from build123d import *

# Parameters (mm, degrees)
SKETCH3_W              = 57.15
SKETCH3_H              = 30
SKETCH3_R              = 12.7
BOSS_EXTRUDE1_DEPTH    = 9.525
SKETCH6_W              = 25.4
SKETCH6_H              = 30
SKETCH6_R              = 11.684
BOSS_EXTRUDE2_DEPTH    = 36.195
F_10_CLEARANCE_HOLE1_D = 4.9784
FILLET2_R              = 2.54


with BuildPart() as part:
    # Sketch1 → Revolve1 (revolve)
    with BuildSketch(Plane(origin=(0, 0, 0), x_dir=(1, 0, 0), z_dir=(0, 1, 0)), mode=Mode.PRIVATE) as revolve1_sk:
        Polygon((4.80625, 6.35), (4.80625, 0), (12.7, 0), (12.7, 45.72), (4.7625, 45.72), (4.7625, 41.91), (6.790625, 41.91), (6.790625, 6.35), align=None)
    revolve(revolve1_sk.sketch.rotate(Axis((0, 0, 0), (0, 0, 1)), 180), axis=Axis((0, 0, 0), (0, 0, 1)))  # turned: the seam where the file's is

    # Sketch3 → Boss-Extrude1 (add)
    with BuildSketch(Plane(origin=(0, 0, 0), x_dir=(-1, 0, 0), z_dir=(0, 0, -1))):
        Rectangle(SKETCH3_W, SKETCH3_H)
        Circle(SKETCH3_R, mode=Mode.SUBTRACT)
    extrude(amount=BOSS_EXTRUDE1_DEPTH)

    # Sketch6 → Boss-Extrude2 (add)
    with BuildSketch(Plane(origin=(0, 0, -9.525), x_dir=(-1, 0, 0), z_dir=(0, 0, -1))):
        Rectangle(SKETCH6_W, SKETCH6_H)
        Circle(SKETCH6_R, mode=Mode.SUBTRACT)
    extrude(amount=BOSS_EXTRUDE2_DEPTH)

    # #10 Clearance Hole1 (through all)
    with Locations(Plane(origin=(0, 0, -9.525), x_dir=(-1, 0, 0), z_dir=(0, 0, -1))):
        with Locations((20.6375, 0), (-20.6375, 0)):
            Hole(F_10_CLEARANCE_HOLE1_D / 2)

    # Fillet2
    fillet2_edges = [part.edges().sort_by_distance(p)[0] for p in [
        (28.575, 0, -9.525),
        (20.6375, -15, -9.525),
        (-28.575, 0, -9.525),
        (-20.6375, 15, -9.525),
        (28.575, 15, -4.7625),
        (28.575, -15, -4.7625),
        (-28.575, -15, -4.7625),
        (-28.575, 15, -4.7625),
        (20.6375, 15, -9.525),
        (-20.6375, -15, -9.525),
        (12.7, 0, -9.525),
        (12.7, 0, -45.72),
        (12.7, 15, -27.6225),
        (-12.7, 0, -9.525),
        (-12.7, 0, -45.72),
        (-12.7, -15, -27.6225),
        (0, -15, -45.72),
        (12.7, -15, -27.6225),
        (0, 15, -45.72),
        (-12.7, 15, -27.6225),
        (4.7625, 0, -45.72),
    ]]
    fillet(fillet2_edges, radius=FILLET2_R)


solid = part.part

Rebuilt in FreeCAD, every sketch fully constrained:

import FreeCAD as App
import Part
import Sketcher
Q = App.Units.Quantity


def edges_at(feature, points):
    """Names of the edges that pass closest to the given points."""
    edges = feature.Shape.Edges
    near = lambda p: min(range(len(edges)), key=lambda i: edges[i].distToShape(Part.Vertex(*p))[0])
    return sorted({f"Edge{near(p) + 1}" for p in points})

doc = App.newDocument("Part")
body = doc.addObject("PartDesign::Body", "Body")

sketch1 = body.newObject("Sketcher::SketchObject", "Sketch")
sketch1.AttachmentSupport = (doc.getObject("XZ_Plane"), [""])
sketch1.MapMode = "FlatFace"
sketch1.addGeometry(Part.LineSegment(App.Vector(4.8, -6.3, 0), App.Vector(4.8, 0, 0)), False)
sketch1.addGeometry(Part.LineSegment(App.Vector(4.8, 0, 0), App.Vector(12.7, 0, 0)), False)
sketch1.addGeometry(Part.LineSegment(App.Vector(12.7, 0, 0), App.Vector(12.7, -45.7, 0)), False)
sketch1.addGeometry(Part.LineSegment(App.Vector(12.7, -45.7, 0), App.Vector(4.8, -45.7, 0)), False)
sketch1.addGeometry(Part.LineSegment(App.Vector(4.8, -45.7, 0), App.Vector(4.8, -41.9, 0)), False)
sketch1.addGeometry(Part.LineSegment(App.Vector(4.8, -41.9, 0), App.Vector(6.8, -41.9, 0)), False)
sketch1.addGeometry(Part.LineSegment(App.Vector(6.8, -41.9, 0), App.Vector(6.8, -6.3, 0)), False)
sketch1.addGeometry(Part.LineSegment(App.Vector(6.8, -6.3, 0), App.Vector(4.8, -6.3, 0)), False)
sketch1.addConstraint(Sketcher.Constraint("Coincident", 0, 2, 1, 1))
sketch1.addConstraint(Sketcher.Constraint("Coincident", 1, 2, 2, 1))
sketch1.addConstraint(Sketcher.Constraint("Coincident", 2, 2, 3, 1))
sketch1.addConstraint(Sketcher.Constraint("Coincident", 3, 2, 4, 1))
sketch1.addConstraint(Sketcher.Constraint("Coincident", 4, 2, 5, 1))
sketch1.addConstraint(Sketcher.Constraint("Coincident", 5, 2, 6, 1))
sketch1.addConstraint(Sketcher.Constraint("Coincident", 6, 2, 7, 1))
sketch1.addConstraint(Sketcher.Constraint("Coincident", 7, 2, 0, 1))
sketch1.addConstraint(Sketcher.Constraint("Vertical", 0))
sketch1.addConstraint(Sketcher.Constraint("Horizontal", 1))
sketch1.addConstraint(Sketcher.Constraint("Vertical", 2))
sketch1.addConstraint(Sketcher.Constraint("Horizontal", 3))
sketch1.addConstraint(Sketcher.Constraint("Vertical", 4))
sketch1.addConstraint(Sketcher.Constraint("Horizontal", 5))
sketch1.addConstraint(Sketcher.Constraint("Vertical", 6))
sketch1.addConstraint(Sketcher.Constraint("Horizontal", 7))
sketch1.addConstraint(Sketcher.Constraint("PointOnObject", 0, 2, -1))
sketch1.addConstraint(Sketcher.Constraint("DistanceY", 2, 2, 2, 1, Q("1.8 in")))
sketch1.addConstraint(Sketcher.Constraint("DistanceY", 6, 1, 6, 2, Q("1.4 in")))
sketch1.addConstraint(Sketcher.Constraint("DistanceY", 0, 1, 0, 2, Q("0.25 in")))
sketch1.addConstraint(Sketcher.Constraint("DistanceX", -1, 1, 1, 2, Q("0.5 in")))
sketch1.addConstraint(Sketcher.Constraint("DistanceX", 3, 2, 3, 1, Q("0.3125 in")))
sketch1.addConstraint(Sketcher.Constraint("DistanceX", 7, 2, 7, 1, Q("0.078125 in")))
sketch1.addConstraint(Sketcher.Constraint("DistanceX", 1, 1, 1, 2, Q("7.89375 mm")))
revolution = body.newObject("PartDesign::Revolution", "Revolution")
revolution.Profile = sketch1
revolution.ReferenceAxis = (sketch1, ["V_Axis"])
revolution.Angle = 360

sketch2 = body.newObject("Sketcher::SketchObject", "Sketch001")
sketch2.AttachmentSupport = (doc.getObject("XY_Plane"), [""])
sketch2.MapMode = "FlatFace"
sketch2.addGeometry(Part.LineSegment(App.Vector(29, 15, 0), App.Vector(29, -15, 0)), False)
sketch2.addGeometry(Part.LineSegment(App.Vector(29, -15, 0), App.Vector(-29, -15, 0)), False)
sketch2.addGeometry(Part.LineSegment(App.Vector(-29, -15, 0), App.Vector(-29, 15, 0)), False)
sketch2.addGeometry(Part.LineSegment(App.Vector(-29, 15, 0), App.Vector(29, 15, 0)), False)
sketch2.addGeometry(Part.Circle(App.Vector(0, 0, 0), App.Vector(0, 0, 1), 13), False)
sketch2.addConstraint(Sketcher.Constraint("Coincident", 0, 2, 1, 1))
sketch2.addConstraint(Sketcher.Constraint("Coincident", 1, 2, 2, 1))
sketch2.addConstraint(Sketcher.Constraint("Coincident", 2, 2, 3, 1))
sketch2.addConstraint(Sketcher.Constraint("Coincident", 3, 2, 0, 1))
sketch2.addConstraint(Sketcher.Constraint("Vertical", 0))
sketch2.addConstraint(Sketcher.Constraint("Horizontal", 1))
sketch2.addConstraint(Sketcher.Constraint("Vertical", 2))
sketch2.addConstraint(Sketcher.Constraint("Horizontal", 3))
sketch2.addConstraint(Sketcher.Constraint("Coincident", 4, 3, -1, 1))
sketch2.addConstraint(Sketcher.Constraint("Symmetric", 0, 2, 2, 2, -1, 1))
sketch2.addConstraint(Sketcher.Constraint("Diameter", 4, Q("1 in")))
sketch2.addConstraint(Sketcher.Constraint("DistanceX", 1, 2, 1, 1, Q("2.25 in")))
sketch2.addConstraint(Sketcher.Constraint("DistanceY", 0, 2, 0, 1, Q("30 mm")))
pad1 = body.newObject("PartDesign::Pad", "Pad")
pad1.Profile = sketch2
pad1.Length = Q("0.375 in")
pad1.Reversed = True

sketch3 = body.newObject("Sketcher::SketchObject", "Sketch002")
sketch3.AttachmentSupport = (doc.getObject("XY_Plane"), [""])
sketch3.MapMode = "FlatFace"
sketch3.AttachmentOffset = App.Placement(App.Vector(0, 0, -0.375 * 25.4), App.Rotation())
sketch3.addGeometry(Part.LineSegment(App.Vector(13, 15, 0), App.Vector(13, -15, 0)), False)
sketch3.addGeometry(Part.LineSegment(App.Vector(13, -15, 0), App.Vector(-13, -15, 0)), False)
sketch3.addGeometry(Part.LineSegment(App.Vector(-13, -15, 0), App.Vector(-13, 15, 0)), False)
sketch3.addGeometry(Part.LineSegment(App.Vector(-13, 15, 0), App.Vector(13, 15, 0)), False)
sketch3.addGeometry(Part.Circle(App.Vector(0, 0, 0), App.Vector(0, 0, 1), 12), False)
sketch3.addConstraint(Sketcher.Constraint("Coincident", 0, 2, 1, 1))
sketch3.addConstraint(Sketcher.Constraint("Coincident", 1, 2, 2, 1))
sketch3.addConstraint(Sketcher.Constraint("Coincident", 2, 2, 3, 1))
sketch3.addConstraint(Sketcher.Constraint("Coincident", 3, 2, 0, 1))
sketch3.addConstraint(Sketcher.Constraint("Vertical", 0))
sketch3.addConstraint(Sketcher.Constraint("Horizontal", 1))
sketch3.addConstraint(Sketcher.Constraint("Vertical", 2))
sketch3.addConstraint(Sketcher.Constraint("Horizontal", 3))
sketch3.addConstraint(Sketcher.Constraint("Coincident", 4, 3, -1, 1))
sketch3.addConstraint(Sketcher.Constraint("Symmetric", 0, 2, 2, 2, -1, 1))
sketch3.addConstraint(Sketcher.Constraint("Diameter", 4, Q("0.92 in")))
sketch3.addConstraint(Sketcher.Constraint("DistanceX", 1, 2, 1, 1, Q("1 in")))
sketch3.addConstraint(Sketcher.Constraint("DistanceY", 0, 2, 0, 1, Q("30 mm")))
pad2 = body.newObject("PartDesign::Pad", "Pad001")
pad2.Profile = sketch3
pad2.Length = Q("1.425 in")
pad2.Reversed = True

sketch4 = body.newObject("Sketcher::SketchObject", "Sketch003")
sketch4.AttachmentSupport = (doc.getObject("XY_Plane"), [""])
sketch4.MapMode = "FlatFace"
sketch4.AttachmentOffset = App.Placement(App.Vector(0, 0, -0.375 * 25.4), App.Rotation())
sketch4.addGeometry(Part.Circle(App.Vector(-20.6, 0, 0), App.Vector(0, 0, 1), 2.5), False)
sketch4.addGeometry(Part.Circle(App.Vector(20.6, 0, 0), App.Vector(0, 0, 1), 2.5), False)
sketch4.addConstraint(Sketcher.Constraint("Equal", 0, 1))
sketch4.addConstraint(Sketcher.Constraint("Symmetric", 0, 3, 1, 3, -1, 1))
sketch4.addConstraint(Sketcher.Constraint("PointOnObject", 0, 3, -1))
sketch4.addConstraint(Sketcher.Constraint("Diameter", 0, Q("0.196 in")))
sketch4.addConstraint(Sketcher.Constraint("DistanceX", 0, 3, -1, 1, Q("0.8125 in")))
doc.recompute()
hole = body.newObject("PartDesign::Hole", "Hole")
hole.Profile = sketch4
hole.ThreadType = "None"
hole.Diameter = Q("0.196 in")
hole.DepthType = "ThroughAll"
hole.Reversed = True
doc.recompute()

fillet = body.newObject("PartDesign::Fillet", "Fillet")
fillet.Base = (hole, edges_at(hole, [
    (28.575, 0, -9.525),
    (20.637, -15, -9.525),
    (-28.575, 0, -9.525),
    (-20.637, 15, -9.525),
    (28.575, 15, -4.763),
    (28.575, -15, -4.763),
    (-28.575, -15, -4.763),
    (-28.575, 15, -4.763),
    (20.637, 15, -9.525),
    (-20.637, -15, -9.525),
    (12.7, 0, -9.525),
    (12.7, 0, -45.72),
    (12.7, 15, -27.622),
    (-12.7, 0, -9.525),
    (-12.7, 0, -45.72),
    (-12.7, -15, -27.622),
    (0, -15, -45.72),
    (12.7, -15, -27.622),
    (0, 15, -45.72),
    (-12.7, 15, -27.622),
    (4.763, 0, -45.72),
]))
fillet.Radius = Q("0.1 in")

doc.recompute()
